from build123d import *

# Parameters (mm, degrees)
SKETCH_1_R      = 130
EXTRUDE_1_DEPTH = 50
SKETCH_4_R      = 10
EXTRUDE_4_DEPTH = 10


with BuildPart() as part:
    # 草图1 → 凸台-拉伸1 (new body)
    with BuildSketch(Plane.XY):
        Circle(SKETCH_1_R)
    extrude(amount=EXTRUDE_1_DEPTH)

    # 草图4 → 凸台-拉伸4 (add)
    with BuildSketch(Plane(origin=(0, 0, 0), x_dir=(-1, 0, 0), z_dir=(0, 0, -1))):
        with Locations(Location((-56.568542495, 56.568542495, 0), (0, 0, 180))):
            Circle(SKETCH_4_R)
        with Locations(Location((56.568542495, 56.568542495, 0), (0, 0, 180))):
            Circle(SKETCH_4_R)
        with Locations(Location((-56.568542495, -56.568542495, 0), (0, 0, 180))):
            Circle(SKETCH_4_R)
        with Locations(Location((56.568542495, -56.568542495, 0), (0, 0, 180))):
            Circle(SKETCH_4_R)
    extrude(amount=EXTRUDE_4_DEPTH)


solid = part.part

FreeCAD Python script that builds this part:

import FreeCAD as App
import Part
import Sketcher

V = App.Vector
Q = App.Units.Quantity

doc = App.newDocument("Part")
params = doc.addObject("Spreadsheet::Sheet", "Params")
for row, (alias, value) in enumerate([
    ("sketch1_diameter", "260 mm"),
    ("pad1_length", "50 mm"),
    ("sketch2_diameter", "20 mm"),
    ("pad2_length", "10 mm"),
], start=1):
    params.set(f"A{row}", alias)
    params.set(f"B{row}", "=" + value)
    params.setAlias(f"B{row}", alias)

body = doc.addObject("PartDesign::Body", "Body")

# Sketch on XY plane
sketch1 = doc.addObject("Sketcher::SketchObject", "Sketch")
body.addObject(sketch1)
sketch1.AttachmentSupport = (doc.XY_Plane, [""])
sketch1.MapMode = "FlatFace"
sketch1.addGeometry(Part.Circle(V(0, 0, 0), V(0, 0, 1), 130), False)
sketch1.addConstraint(Sketcher.Constraint("Coincident", 0, 3, -1, 1))
sketch1.addConstraint(Sketcher.Constraint("Diameter", 0, Q("260 mm")))
sketch1.setExpression("Constraints[1]", "Params.sketch1_diameter")
pad1 = doc.addObject("PartDesign::Pad", "Pad")
body.addObject(pad1)
pad1.Profile = sketch1
pad1.setExpression("Length", "Params.pad1_length")

# Sketch on XY plane
sketch2 = doc.addObject("Sketcher::SketchObject", "Sketch001")
body.addObject(sketch2)
sketch2.AttachmentSupport = (doc.XY_Plane, [""])
sketch2.MapMode = "FlatFace"
sketch2.addGeometry(Part.Circle(V(57, 57, 0), V(0, 0, 1), 10), False)
sketch2.addGeometry(Part.Circle(V(-57, 57, 0), V(0, 0, 1), 10), False)
sketch2.addGeometry(Part.Circle(V(57, -57, 0), V(0, 0, 1), 10), False)
sketch2.addGeometry(Part.Circle(V(-57, -57, 0), V(0, 0, 1), 10), False)
sketch2.addConstraint(Sketcher.Constraint("Equal", 0, 1))
sketch2.addConstraint(Sketcher.Constraint("Equal", 1, 2))
sketch2.addConstraint(Sketcher.Constraint("Equal", 2, 3))
sketch2.addConstraint(Sketcher.Constraint("Symmetric", 1, 3, 2, 3, -1, 1))
sketch2.addConstraint(Sketcher.Constraint("Symmetric", 0, 3, 3, 3, -1, 1))
sketch2.addConstraint(Sketcher.Constraint("Symmetric", 0, 3, 1, 3, -2))
sketch2.addConstraint(Sketcher.Constraint("Diameter", 0, Q("20 mm")))
sketch2.addConstraint(Sketcher.Constraint("DistanceX", -1, 1, 0, 3, Q("56.568542 mm")))
sketch2.addConstraint(Sketcher.Constraint("DistanceY", -1, 1, 0, 3, Q("56.568542 mm")))
sketch2.setExpression("Constraints[6]", "Params.sketch2_diameter")
pad2 = doc.addObject("PartDesign::Pad", "Pad001")
body.addObject(pad2)
pad2.Profile = sketch2
pad2.setExpression("Length", "Params.pad2_length")
pad2.Reversed = True

doc.recompute()
